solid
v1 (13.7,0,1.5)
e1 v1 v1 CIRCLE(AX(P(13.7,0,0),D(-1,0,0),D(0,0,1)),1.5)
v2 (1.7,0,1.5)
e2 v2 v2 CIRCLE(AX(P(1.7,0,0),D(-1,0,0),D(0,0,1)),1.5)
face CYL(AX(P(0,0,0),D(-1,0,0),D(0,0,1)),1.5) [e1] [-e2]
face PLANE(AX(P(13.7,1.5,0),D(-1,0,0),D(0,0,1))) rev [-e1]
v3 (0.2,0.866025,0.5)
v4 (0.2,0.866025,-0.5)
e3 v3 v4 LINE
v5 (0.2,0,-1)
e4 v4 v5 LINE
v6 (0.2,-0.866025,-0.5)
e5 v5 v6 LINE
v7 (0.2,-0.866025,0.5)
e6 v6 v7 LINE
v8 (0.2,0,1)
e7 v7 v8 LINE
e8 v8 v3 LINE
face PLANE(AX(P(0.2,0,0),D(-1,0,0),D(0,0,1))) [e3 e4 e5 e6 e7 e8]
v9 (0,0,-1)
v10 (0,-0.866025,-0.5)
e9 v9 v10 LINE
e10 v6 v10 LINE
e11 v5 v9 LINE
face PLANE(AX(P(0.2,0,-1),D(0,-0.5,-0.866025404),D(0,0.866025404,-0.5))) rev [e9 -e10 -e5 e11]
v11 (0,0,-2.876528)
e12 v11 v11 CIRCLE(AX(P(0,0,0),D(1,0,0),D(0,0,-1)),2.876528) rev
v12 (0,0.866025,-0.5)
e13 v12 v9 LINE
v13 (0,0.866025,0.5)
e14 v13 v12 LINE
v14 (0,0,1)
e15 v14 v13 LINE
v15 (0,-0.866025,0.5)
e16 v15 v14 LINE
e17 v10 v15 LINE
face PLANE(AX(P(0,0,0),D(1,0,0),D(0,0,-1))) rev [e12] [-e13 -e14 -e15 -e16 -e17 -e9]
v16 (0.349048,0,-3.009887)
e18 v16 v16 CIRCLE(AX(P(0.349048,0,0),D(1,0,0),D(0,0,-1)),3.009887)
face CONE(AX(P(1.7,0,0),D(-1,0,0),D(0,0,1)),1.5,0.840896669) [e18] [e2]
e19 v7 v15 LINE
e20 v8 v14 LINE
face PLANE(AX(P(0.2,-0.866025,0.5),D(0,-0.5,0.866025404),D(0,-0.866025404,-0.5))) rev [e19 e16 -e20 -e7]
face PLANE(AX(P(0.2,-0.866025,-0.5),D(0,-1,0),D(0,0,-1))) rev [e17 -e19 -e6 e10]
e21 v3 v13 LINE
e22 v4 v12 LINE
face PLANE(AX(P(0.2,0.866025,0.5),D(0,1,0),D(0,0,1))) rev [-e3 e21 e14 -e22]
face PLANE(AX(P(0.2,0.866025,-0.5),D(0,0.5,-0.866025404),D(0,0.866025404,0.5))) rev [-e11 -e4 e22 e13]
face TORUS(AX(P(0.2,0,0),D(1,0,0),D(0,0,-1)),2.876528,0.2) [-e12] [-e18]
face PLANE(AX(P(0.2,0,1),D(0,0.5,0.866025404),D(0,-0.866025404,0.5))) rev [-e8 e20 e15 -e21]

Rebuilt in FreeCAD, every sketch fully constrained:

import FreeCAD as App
import Part
import Sketcher
Q = App.Units.Quantity


def edges_at(feature, points):
    """Names of the edges that pass closest to the given points."""
    edges = feature.Shape.Edges
    near = lambda p: min(range(len(edges)), key=lambda i: edges[i].distToShape(Part.Vertex(*p))[0])
    return sorted({f"Edge{near(p) + 1}" for p in points})


def add_polygon(sketch, points):
    """Adds a closed chain of lines whose ends are joined by coincident constraints."""
    first, n = sketch.GeometryCount, len(points)
    for a, b in zip(points, points[1:] + points[:1]):
        sketch.addGeometry(Part.LineSegment(App.Vector(*a, 0), App.Vector(*b, 0)), False)
    for i in range(n):
        sketch.addConstraint(Sketcher.Constraint("Coincident", first + i, 2, first + (i + 1) % n, 1))

doc = App.newDocument("Part")
params = doc.addObject("Spreadsheet::Sheet", "Params")
for row, (alias, value) in enumerate([
    ("sketch1_width", "12 mm"),
    ("sketch1_width2", "13.7 mm"),
    ("sketch1_height", "3.4 mm"),
    ("sketch1_height2", "1.5 mm"),
    ("revolution_angle", "360 deg"),
    ("fillet_radius", "0.2 mm"),
    ("sketch2_height", "1 mm"),
    ("sketch2_length", "1 mm"),
    ("pocket1_length", "0.2 mm"),
], start=1):
    params.set(f"A{row}", alias)
    params.set(f"B{row}", "=" + value)
    params.setAlias(f"B{row}", alias)

body = doc.addObject("PartDesign::Body", "Body")

sketch1 = doc.addObject("Sketcher::SketchObject", "Sketch")
body.addObject(sketch1)
sketch1.AttachmentSupport = (doc.XY_Plane, [""])
sketch1.MapMode = "FlatFace"
add_polygon(sketch1, [(0, 3.4), (0, 0), (13.7, 0), (13.7, 1.5), (1.7, 1.5)])
sketch1.addConstraint([
    Sketcher.Constraint("Vertical", 0),
    Sketcher.Constraint("Horizontal", 1),
    Sketcher.Constraint("Vertical", 2),
    Sketcher.Constraint("Horizontal", 3),
    Sketcher.Constraint("Coincident", 0, 2, -1, 1),
    Sketcher.Constraint("DistanceX", 3, 2, 3, 1, 12.0),
    Sketcher.Constraint("DistanceX", 1, 1, 1, 2, 13.7),
    Sketcher.Constraint("DistanceY", 0, 2, 0, 1, 3.4),
    Sketcher.Constraint("DistanceY", 2, 1, 2, 2, 1.5),
])
sketch1.setExpression("Constraints[10]", "Params.sketch1_width")
sketch1.setExpression("Constraints[11]", "Params.sketch1_width2")
sketch1.setExpression("Constraints[12]", "Params.sketch1_height")
sketch1.setExpression("Constraints[13]", "Params.sketch1_height2")
revolution = doc.addObject("PartDesign::Revolution", "Revolution")
body.addObject(revolution)
revolution.Profile = sketch1
revolution.ReferenceAxis = (sketch1, ["H_Axis"])
revolution.setExpression("Angle", "Params.revolution_angle")
doc.recompute()

fillet = doc.addObject("PartDesign::Fillet", "Fillet")
body.addObject(fillet)
fillet.Base = (revolution, edges_at(revolution, [(0, 0, -3.4)]))
fillet.setExpression("Radius", "Params.fillet_radius")

sketch2 = doc.addObject("Sketcher::SketchObject", "Sketch001")
body.addObject(sketch2)
sketch2.AttachmentSupport = (doc.YZ_Plane, [""])
sketch2.MapMode = "FlatFace"
add_polygon(sketch2, [(-0.866025, 0.5), (0, 1), (0.866025, 0.5), (0.866025, -0.5), (0, -1), (-0.866025, -0.5)])
sketch2.addConstraint([
    Sketcher.Constraint("Vertical", 2),
    Sketcher.Constraint("Vertical", 5),
    Sketcher.Constraint("Symmetric", 0, 2, 3, 2, -1, 1),
    Sketcher.Constraint("Symmetric", 1, 2, 4, 2, -1, 1),
    Sketcher.Constraint("PointOnObject", 0, 2, -2),
    Sketcher.Constraint("Parallel", 0, 3),
    Sketcher.Constraint("Horizontal", 2, 2, 4, 2),
    Sketcher.Constraint("DistanceY", 2, 2, 2, 1, 1.0),
    Sketcher.Constraint("Angle", 0, Q("30 deg")),
    Sketcher.Constraint("Distance", 0, 1.0),
])
sketch2.setExpression("Constraints[13]", "Params.sketch2_height")
sketch2.setExpression("Constraints[15]", "Params.sketch2_length")
pocket1 = doc.addObject("PartDesign::Pocket", "Pocket")
body.addObject(pocket1)
pocket1.Profile = sketch2
pocket1.setExpression("Length", "Params.pocket1_length")
pocket1.Reversed = True

doc.recompute()
